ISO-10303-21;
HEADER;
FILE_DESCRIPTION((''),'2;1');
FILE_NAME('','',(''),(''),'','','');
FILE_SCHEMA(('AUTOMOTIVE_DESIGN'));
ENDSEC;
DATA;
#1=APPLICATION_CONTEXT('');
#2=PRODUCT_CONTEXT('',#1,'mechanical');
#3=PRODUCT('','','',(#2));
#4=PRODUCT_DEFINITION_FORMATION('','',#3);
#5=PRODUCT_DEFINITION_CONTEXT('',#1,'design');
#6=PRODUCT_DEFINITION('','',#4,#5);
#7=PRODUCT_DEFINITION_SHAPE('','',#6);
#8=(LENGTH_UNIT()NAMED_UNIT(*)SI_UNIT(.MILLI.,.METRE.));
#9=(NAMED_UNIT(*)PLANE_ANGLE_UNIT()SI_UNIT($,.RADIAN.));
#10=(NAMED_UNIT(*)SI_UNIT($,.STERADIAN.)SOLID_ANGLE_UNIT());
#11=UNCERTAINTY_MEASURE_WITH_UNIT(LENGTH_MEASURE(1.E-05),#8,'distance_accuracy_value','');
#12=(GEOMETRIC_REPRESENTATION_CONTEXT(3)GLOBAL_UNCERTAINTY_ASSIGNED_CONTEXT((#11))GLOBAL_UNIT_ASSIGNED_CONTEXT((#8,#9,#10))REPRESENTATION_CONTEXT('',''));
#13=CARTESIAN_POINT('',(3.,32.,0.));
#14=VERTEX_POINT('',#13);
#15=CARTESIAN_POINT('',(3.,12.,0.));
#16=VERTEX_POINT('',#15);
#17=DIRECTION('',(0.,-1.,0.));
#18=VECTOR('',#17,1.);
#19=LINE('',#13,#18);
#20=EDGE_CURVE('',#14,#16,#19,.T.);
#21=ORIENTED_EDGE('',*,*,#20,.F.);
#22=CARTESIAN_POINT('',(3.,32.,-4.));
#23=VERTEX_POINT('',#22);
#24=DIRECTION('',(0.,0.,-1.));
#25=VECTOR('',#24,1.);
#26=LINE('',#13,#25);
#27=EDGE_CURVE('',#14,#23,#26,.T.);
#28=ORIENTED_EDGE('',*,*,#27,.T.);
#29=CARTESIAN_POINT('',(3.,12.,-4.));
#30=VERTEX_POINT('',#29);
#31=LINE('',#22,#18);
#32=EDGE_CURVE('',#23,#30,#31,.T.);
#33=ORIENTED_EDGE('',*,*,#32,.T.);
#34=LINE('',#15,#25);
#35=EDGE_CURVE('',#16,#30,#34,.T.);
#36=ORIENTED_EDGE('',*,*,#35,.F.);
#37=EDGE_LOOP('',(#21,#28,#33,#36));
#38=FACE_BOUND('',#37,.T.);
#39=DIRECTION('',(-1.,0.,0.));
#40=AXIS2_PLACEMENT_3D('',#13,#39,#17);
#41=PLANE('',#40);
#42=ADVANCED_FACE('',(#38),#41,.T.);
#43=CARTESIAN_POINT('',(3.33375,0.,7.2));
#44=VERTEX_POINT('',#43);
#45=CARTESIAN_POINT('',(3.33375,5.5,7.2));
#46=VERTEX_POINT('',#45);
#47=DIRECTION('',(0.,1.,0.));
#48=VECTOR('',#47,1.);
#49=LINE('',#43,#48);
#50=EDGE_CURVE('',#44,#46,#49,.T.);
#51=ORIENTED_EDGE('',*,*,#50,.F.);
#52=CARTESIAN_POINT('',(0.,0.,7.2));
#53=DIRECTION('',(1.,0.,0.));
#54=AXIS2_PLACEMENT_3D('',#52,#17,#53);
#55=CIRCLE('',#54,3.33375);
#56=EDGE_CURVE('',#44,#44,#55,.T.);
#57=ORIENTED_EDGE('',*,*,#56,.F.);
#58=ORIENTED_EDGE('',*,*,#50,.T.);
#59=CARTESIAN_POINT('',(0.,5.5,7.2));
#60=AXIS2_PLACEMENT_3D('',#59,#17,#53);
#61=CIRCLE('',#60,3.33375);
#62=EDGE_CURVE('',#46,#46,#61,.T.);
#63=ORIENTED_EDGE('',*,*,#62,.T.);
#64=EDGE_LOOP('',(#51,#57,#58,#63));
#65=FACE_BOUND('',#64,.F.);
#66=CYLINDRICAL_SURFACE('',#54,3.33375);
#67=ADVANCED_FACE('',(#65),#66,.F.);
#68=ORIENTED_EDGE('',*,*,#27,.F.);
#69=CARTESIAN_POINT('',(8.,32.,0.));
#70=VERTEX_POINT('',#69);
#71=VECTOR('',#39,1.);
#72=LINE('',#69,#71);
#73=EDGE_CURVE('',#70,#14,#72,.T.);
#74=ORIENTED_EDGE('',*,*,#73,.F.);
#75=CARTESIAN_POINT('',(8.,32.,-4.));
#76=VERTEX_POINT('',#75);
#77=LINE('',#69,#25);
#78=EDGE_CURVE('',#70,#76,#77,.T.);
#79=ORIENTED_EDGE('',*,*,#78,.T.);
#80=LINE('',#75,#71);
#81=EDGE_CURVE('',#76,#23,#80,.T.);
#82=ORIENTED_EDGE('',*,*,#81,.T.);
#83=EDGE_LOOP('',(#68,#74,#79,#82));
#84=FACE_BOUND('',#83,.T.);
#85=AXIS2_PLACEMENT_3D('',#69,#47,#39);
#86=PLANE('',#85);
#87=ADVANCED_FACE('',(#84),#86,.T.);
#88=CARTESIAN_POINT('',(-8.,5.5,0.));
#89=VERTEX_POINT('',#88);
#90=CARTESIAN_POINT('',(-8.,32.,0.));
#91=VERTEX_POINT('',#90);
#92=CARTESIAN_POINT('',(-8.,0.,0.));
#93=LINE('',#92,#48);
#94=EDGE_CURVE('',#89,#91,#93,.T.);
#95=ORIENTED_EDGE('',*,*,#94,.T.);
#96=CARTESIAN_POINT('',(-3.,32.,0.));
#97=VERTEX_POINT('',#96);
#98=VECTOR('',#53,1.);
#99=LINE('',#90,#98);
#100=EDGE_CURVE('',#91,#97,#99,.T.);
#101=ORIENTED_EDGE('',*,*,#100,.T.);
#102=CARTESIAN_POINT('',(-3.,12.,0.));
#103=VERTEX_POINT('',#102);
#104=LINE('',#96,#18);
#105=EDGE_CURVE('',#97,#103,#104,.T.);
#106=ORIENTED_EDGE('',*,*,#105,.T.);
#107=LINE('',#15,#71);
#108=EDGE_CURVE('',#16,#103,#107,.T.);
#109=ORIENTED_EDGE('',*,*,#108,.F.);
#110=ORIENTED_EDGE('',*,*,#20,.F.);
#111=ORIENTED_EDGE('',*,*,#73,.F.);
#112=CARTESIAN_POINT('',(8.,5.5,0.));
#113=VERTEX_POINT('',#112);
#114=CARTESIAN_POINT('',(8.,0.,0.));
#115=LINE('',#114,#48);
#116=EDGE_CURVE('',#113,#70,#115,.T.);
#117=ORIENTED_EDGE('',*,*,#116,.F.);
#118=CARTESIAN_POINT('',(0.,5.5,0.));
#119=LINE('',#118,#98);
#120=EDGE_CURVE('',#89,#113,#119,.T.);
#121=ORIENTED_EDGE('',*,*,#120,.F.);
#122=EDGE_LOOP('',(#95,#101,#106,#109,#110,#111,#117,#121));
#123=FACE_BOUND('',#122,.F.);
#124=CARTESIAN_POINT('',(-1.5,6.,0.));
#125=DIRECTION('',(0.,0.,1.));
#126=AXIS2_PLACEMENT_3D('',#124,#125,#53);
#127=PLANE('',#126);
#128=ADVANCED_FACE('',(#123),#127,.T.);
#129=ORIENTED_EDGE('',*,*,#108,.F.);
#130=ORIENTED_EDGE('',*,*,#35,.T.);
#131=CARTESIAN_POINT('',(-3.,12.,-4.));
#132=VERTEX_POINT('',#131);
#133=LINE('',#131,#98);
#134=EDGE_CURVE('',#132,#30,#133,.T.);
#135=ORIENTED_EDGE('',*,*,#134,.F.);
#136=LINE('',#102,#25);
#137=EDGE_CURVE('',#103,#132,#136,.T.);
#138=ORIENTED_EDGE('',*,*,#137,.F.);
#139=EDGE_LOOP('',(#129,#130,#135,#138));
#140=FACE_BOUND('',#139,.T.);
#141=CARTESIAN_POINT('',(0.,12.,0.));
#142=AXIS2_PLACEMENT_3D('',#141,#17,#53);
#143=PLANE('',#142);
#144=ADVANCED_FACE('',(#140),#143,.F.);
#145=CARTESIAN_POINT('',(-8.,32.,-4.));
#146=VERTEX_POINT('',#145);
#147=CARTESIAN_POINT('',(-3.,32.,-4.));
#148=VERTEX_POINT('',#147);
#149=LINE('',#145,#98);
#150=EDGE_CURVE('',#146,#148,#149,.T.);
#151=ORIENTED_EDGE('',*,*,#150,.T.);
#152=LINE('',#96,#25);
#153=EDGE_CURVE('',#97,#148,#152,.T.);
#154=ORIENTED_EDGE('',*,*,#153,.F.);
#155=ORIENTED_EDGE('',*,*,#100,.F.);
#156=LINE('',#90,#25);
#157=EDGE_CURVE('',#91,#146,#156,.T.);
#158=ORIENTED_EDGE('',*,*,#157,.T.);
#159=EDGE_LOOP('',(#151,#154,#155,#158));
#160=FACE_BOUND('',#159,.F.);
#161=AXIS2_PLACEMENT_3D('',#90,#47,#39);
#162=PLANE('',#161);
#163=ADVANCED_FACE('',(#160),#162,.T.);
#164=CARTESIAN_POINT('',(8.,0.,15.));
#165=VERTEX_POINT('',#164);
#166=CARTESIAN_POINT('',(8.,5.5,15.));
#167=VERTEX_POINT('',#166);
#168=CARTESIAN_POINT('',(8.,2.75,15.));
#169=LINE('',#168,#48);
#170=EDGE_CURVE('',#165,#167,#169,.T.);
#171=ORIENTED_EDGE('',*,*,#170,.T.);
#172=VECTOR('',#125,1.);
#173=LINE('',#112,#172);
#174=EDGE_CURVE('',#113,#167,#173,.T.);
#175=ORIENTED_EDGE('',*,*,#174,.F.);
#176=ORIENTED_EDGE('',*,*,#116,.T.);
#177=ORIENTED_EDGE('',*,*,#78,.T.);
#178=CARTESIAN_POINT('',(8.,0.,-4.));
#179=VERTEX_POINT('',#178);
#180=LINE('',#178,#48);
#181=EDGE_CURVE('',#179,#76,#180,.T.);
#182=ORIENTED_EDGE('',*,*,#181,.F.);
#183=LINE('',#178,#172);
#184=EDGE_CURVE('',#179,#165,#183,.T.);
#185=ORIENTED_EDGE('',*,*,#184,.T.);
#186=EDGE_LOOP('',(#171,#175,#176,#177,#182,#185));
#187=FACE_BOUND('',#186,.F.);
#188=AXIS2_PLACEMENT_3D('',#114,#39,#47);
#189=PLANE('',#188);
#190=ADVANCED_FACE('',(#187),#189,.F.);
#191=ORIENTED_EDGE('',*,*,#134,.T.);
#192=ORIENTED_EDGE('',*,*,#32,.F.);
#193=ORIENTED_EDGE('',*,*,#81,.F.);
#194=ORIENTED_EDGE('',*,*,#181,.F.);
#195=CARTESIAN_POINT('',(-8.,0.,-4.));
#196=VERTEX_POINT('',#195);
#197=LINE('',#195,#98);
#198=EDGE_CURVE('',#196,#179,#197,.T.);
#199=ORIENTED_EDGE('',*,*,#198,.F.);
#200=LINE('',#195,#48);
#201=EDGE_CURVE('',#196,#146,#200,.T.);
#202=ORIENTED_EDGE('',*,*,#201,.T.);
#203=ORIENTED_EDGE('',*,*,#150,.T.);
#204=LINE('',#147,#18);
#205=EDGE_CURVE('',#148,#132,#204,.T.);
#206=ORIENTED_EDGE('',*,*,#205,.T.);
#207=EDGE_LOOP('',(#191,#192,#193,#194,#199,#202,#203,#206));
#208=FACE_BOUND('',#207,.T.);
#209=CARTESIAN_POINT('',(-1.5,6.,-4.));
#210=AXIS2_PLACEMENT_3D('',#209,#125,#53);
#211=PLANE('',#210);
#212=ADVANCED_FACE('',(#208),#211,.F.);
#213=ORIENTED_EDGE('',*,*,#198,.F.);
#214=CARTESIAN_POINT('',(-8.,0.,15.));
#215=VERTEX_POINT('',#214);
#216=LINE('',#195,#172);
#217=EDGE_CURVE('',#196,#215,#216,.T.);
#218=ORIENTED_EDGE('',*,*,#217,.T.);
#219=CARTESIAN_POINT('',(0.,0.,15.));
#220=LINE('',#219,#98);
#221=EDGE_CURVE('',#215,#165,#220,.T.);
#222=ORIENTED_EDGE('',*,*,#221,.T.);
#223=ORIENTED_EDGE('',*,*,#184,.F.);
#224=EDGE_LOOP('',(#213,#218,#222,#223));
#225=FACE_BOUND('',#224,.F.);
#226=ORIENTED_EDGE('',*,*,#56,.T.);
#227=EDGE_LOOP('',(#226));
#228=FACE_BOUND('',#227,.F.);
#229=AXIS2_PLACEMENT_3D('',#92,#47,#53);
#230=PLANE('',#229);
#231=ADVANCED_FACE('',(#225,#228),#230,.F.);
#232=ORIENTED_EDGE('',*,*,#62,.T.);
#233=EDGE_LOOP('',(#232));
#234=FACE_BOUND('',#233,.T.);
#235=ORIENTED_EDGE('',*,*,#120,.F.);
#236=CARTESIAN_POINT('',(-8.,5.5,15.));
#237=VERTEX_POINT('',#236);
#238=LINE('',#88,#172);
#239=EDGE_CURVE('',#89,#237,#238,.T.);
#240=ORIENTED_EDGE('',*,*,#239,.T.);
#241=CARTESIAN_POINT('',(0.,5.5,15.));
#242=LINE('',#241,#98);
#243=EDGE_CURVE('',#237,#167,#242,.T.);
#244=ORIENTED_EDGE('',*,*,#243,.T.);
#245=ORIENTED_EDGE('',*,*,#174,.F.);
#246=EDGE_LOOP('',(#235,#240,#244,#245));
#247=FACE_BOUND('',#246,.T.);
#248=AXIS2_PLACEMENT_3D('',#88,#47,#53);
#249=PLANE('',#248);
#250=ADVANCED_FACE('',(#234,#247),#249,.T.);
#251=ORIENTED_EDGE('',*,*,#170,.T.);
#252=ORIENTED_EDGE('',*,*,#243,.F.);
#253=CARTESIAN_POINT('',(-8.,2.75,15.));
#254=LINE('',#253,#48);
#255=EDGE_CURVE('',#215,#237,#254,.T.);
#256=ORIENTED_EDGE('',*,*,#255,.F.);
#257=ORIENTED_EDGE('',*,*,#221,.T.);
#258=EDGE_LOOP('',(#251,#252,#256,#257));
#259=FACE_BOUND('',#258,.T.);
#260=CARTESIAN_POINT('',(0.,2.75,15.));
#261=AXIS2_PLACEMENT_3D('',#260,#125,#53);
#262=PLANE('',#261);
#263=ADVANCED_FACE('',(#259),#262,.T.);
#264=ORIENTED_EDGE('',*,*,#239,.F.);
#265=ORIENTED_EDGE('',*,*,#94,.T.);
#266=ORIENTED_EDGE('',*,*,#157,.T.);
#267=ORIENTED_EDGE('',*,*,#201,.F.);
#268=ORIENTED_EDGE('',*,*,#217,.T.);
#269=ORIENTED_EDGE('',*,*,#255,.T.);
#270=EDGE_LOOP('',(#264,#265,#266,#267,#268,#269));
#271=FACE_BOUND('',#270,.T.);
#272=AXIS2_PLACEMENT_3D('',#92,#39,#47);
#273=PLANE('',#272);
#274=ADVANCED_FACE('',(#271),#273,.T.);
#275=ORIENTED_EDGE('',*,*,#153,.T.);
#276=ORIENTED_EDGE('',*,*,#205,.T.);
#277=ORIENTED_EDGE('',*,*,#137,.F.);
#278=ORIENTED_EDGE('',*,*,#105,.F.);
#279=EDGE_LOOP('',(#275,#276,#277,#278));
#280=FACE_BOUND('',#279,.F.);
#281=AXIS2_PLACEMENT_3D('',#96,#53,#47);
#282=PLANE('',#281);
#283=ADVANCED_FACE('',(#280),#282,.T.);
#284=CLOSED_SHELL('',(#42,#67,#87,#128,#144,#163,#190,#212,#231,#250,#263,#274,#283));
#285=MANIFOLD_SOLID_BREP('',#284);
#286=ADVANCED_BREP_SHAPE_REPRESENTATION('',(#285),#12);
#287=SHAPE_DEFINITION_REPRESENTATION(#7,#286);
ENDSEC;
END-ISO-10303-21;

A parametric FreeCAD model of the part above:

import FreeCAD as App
import Part
import Sketcher
from FreeCAD import Vector
Q = App.Units.Quantity


def add_polygon(sketch, points):
    """Adds a closed chain of lines whose ends are joined by coincident constraints."""
    first, n = sketch.GeometryCount, len(points)
    for a, b in zip(points, points[1:] + points[:1]):
        sketch.addGeometry(Part.LineSegment(App.Vector(*a, 0), App.Vector(*b, 0)), False)
    for i in range(n):
        sketch.addConstraint(Sketcher.Constraint("Coincident", first + i, 2, first + (i + 1) % n, 1))

doc = App.newDocument("Part")
body = doc.addObject("PartDesign::Body", "Body")

sketch1 = body.newObject("Sketcher::SketchObject", "Sketch")
sketch1.AttachmentSupport = (doc.getObject("XY_Plane"), [""])
sketch1.MapMode = "FlatFace"
add_polygon(sketch1, [(0, 12), (0, 0), (8, 0), (8, 32), (3, 32), (3, 12)])
sketch1.addConstraint([
    Sketcher.Constraint("Vertical", 0),
    Sketcher.Constraint("Horizontal", 1),
    Sketcher.Constraint("Vertical", 2),
    Sketcher.Constraint("Horizontal", 3),
    Sketcher.Constraint("Vertical", 4),
    Sketcher.Constraint("Horizontal", 5),
    Sketcher.Constraint("Coincident", 0, 2, -1, 1),
    Sketcher.Constraint("DistanceX", 1, 1, 1, 2, Q("8 mm")),
    Sketcher.Constraint("DistanceX", 3, 2, 3, 1, Q("5 mm")),
    Sketcher.Constraint("DistanceY", 0, 2, 0, 1, Q("12 mm")),
    Sketcher.Constraint("DistanceY", 2, 1, 2, 2, Q("32 mm")),
])
pad1 = body.newObject("PartDesign::Pad", "Pad")
pad1.Profile = sketch1
pad1.Length = 4
pad1.Reversed = True
body2 = doc.addObject("PartDesign::Body", "Body001")
doc.recompute()

body2.BaseFeature = body
doc.recompute()

mirroring = doc.addObject("Part::Mirroring", "Mirroring")
mirroring.Source = body
mirroring.Base = Vector(0, 6, -2)
mirroring.Normal = Vector(-1, 0, 0)
body3 = doc.addObject("PartDesign::Body", "Body002")
body3.BaseFeature = mirroring
boolean = body2.newObject("PartDesign::Boolean", "Boolean")
boolean.Type = "Fuse"
boolean.addObjects([body3])
doc.recompute()

sketch2 = body2.newObject("Sketcher::SketchObject", "Sketch001")
sketch2.AttachmentSupport = (doc.getObject("XY_Plane001"), [""])
sketch2.MapMode = "FlatFace"
add_polygon(sketch2, [(-8, 6), (-8, 0), (8, 0), (8, 6)])
sketch2.addConstraint([
    Sketcher.Constraint("Vertical", 0),
    Sketcher.Constraint("Horizontal", 1),
    Sketcher.Constraint("Vertical", 2),
    Sketcher.Constraint("Horizontal", 3),
    Sketcher.Constraint("Symmetric", 0, 2, 1, 2, -1, 1),
    Sketcher.Constraint("DistanceX", 1, 1, 1, 2, Q("16 mm")),
    Sketcher.Constraint("DistanceY", 0, 2, 0, 1, Q("5.5 mm")),
])
pad2 = body2.newObject("PartDesign::Pad", "Pad001")
pad2.Profile = sketch2
pad2.Length = 15

sketch3 = body2.newObject("Sketcher::SketchObject", "Sketch002")
sketch3.AttachmentSupport = (doc.getObject("XZ_Plane001"), [""])
sketch3.MapMode = "FlatFace"
sketch3.addGeometry(Part.Circle(Vector(0, 7.2, 0), Vector(0, 0, 1), 3.3), False)
sketch3.addConstraint([
    Sketcher.Constraint("PointOnObject", 0, 3, -2),
    Sketcher.Constraint("Diameter", 0, Q("6.6675 mm")),
    Sketcher.Constraint("DistanceY", -1, 1, 0, 3, Q("7.2 mm")),
])
pocket1 = body2.newObject("PartDesign::Pocket", "Pocket")
pocket1.Profile = sketch3
pocket1.Type = "ThroughAll"
mirroring.Visibility = False

doc.recompute()
